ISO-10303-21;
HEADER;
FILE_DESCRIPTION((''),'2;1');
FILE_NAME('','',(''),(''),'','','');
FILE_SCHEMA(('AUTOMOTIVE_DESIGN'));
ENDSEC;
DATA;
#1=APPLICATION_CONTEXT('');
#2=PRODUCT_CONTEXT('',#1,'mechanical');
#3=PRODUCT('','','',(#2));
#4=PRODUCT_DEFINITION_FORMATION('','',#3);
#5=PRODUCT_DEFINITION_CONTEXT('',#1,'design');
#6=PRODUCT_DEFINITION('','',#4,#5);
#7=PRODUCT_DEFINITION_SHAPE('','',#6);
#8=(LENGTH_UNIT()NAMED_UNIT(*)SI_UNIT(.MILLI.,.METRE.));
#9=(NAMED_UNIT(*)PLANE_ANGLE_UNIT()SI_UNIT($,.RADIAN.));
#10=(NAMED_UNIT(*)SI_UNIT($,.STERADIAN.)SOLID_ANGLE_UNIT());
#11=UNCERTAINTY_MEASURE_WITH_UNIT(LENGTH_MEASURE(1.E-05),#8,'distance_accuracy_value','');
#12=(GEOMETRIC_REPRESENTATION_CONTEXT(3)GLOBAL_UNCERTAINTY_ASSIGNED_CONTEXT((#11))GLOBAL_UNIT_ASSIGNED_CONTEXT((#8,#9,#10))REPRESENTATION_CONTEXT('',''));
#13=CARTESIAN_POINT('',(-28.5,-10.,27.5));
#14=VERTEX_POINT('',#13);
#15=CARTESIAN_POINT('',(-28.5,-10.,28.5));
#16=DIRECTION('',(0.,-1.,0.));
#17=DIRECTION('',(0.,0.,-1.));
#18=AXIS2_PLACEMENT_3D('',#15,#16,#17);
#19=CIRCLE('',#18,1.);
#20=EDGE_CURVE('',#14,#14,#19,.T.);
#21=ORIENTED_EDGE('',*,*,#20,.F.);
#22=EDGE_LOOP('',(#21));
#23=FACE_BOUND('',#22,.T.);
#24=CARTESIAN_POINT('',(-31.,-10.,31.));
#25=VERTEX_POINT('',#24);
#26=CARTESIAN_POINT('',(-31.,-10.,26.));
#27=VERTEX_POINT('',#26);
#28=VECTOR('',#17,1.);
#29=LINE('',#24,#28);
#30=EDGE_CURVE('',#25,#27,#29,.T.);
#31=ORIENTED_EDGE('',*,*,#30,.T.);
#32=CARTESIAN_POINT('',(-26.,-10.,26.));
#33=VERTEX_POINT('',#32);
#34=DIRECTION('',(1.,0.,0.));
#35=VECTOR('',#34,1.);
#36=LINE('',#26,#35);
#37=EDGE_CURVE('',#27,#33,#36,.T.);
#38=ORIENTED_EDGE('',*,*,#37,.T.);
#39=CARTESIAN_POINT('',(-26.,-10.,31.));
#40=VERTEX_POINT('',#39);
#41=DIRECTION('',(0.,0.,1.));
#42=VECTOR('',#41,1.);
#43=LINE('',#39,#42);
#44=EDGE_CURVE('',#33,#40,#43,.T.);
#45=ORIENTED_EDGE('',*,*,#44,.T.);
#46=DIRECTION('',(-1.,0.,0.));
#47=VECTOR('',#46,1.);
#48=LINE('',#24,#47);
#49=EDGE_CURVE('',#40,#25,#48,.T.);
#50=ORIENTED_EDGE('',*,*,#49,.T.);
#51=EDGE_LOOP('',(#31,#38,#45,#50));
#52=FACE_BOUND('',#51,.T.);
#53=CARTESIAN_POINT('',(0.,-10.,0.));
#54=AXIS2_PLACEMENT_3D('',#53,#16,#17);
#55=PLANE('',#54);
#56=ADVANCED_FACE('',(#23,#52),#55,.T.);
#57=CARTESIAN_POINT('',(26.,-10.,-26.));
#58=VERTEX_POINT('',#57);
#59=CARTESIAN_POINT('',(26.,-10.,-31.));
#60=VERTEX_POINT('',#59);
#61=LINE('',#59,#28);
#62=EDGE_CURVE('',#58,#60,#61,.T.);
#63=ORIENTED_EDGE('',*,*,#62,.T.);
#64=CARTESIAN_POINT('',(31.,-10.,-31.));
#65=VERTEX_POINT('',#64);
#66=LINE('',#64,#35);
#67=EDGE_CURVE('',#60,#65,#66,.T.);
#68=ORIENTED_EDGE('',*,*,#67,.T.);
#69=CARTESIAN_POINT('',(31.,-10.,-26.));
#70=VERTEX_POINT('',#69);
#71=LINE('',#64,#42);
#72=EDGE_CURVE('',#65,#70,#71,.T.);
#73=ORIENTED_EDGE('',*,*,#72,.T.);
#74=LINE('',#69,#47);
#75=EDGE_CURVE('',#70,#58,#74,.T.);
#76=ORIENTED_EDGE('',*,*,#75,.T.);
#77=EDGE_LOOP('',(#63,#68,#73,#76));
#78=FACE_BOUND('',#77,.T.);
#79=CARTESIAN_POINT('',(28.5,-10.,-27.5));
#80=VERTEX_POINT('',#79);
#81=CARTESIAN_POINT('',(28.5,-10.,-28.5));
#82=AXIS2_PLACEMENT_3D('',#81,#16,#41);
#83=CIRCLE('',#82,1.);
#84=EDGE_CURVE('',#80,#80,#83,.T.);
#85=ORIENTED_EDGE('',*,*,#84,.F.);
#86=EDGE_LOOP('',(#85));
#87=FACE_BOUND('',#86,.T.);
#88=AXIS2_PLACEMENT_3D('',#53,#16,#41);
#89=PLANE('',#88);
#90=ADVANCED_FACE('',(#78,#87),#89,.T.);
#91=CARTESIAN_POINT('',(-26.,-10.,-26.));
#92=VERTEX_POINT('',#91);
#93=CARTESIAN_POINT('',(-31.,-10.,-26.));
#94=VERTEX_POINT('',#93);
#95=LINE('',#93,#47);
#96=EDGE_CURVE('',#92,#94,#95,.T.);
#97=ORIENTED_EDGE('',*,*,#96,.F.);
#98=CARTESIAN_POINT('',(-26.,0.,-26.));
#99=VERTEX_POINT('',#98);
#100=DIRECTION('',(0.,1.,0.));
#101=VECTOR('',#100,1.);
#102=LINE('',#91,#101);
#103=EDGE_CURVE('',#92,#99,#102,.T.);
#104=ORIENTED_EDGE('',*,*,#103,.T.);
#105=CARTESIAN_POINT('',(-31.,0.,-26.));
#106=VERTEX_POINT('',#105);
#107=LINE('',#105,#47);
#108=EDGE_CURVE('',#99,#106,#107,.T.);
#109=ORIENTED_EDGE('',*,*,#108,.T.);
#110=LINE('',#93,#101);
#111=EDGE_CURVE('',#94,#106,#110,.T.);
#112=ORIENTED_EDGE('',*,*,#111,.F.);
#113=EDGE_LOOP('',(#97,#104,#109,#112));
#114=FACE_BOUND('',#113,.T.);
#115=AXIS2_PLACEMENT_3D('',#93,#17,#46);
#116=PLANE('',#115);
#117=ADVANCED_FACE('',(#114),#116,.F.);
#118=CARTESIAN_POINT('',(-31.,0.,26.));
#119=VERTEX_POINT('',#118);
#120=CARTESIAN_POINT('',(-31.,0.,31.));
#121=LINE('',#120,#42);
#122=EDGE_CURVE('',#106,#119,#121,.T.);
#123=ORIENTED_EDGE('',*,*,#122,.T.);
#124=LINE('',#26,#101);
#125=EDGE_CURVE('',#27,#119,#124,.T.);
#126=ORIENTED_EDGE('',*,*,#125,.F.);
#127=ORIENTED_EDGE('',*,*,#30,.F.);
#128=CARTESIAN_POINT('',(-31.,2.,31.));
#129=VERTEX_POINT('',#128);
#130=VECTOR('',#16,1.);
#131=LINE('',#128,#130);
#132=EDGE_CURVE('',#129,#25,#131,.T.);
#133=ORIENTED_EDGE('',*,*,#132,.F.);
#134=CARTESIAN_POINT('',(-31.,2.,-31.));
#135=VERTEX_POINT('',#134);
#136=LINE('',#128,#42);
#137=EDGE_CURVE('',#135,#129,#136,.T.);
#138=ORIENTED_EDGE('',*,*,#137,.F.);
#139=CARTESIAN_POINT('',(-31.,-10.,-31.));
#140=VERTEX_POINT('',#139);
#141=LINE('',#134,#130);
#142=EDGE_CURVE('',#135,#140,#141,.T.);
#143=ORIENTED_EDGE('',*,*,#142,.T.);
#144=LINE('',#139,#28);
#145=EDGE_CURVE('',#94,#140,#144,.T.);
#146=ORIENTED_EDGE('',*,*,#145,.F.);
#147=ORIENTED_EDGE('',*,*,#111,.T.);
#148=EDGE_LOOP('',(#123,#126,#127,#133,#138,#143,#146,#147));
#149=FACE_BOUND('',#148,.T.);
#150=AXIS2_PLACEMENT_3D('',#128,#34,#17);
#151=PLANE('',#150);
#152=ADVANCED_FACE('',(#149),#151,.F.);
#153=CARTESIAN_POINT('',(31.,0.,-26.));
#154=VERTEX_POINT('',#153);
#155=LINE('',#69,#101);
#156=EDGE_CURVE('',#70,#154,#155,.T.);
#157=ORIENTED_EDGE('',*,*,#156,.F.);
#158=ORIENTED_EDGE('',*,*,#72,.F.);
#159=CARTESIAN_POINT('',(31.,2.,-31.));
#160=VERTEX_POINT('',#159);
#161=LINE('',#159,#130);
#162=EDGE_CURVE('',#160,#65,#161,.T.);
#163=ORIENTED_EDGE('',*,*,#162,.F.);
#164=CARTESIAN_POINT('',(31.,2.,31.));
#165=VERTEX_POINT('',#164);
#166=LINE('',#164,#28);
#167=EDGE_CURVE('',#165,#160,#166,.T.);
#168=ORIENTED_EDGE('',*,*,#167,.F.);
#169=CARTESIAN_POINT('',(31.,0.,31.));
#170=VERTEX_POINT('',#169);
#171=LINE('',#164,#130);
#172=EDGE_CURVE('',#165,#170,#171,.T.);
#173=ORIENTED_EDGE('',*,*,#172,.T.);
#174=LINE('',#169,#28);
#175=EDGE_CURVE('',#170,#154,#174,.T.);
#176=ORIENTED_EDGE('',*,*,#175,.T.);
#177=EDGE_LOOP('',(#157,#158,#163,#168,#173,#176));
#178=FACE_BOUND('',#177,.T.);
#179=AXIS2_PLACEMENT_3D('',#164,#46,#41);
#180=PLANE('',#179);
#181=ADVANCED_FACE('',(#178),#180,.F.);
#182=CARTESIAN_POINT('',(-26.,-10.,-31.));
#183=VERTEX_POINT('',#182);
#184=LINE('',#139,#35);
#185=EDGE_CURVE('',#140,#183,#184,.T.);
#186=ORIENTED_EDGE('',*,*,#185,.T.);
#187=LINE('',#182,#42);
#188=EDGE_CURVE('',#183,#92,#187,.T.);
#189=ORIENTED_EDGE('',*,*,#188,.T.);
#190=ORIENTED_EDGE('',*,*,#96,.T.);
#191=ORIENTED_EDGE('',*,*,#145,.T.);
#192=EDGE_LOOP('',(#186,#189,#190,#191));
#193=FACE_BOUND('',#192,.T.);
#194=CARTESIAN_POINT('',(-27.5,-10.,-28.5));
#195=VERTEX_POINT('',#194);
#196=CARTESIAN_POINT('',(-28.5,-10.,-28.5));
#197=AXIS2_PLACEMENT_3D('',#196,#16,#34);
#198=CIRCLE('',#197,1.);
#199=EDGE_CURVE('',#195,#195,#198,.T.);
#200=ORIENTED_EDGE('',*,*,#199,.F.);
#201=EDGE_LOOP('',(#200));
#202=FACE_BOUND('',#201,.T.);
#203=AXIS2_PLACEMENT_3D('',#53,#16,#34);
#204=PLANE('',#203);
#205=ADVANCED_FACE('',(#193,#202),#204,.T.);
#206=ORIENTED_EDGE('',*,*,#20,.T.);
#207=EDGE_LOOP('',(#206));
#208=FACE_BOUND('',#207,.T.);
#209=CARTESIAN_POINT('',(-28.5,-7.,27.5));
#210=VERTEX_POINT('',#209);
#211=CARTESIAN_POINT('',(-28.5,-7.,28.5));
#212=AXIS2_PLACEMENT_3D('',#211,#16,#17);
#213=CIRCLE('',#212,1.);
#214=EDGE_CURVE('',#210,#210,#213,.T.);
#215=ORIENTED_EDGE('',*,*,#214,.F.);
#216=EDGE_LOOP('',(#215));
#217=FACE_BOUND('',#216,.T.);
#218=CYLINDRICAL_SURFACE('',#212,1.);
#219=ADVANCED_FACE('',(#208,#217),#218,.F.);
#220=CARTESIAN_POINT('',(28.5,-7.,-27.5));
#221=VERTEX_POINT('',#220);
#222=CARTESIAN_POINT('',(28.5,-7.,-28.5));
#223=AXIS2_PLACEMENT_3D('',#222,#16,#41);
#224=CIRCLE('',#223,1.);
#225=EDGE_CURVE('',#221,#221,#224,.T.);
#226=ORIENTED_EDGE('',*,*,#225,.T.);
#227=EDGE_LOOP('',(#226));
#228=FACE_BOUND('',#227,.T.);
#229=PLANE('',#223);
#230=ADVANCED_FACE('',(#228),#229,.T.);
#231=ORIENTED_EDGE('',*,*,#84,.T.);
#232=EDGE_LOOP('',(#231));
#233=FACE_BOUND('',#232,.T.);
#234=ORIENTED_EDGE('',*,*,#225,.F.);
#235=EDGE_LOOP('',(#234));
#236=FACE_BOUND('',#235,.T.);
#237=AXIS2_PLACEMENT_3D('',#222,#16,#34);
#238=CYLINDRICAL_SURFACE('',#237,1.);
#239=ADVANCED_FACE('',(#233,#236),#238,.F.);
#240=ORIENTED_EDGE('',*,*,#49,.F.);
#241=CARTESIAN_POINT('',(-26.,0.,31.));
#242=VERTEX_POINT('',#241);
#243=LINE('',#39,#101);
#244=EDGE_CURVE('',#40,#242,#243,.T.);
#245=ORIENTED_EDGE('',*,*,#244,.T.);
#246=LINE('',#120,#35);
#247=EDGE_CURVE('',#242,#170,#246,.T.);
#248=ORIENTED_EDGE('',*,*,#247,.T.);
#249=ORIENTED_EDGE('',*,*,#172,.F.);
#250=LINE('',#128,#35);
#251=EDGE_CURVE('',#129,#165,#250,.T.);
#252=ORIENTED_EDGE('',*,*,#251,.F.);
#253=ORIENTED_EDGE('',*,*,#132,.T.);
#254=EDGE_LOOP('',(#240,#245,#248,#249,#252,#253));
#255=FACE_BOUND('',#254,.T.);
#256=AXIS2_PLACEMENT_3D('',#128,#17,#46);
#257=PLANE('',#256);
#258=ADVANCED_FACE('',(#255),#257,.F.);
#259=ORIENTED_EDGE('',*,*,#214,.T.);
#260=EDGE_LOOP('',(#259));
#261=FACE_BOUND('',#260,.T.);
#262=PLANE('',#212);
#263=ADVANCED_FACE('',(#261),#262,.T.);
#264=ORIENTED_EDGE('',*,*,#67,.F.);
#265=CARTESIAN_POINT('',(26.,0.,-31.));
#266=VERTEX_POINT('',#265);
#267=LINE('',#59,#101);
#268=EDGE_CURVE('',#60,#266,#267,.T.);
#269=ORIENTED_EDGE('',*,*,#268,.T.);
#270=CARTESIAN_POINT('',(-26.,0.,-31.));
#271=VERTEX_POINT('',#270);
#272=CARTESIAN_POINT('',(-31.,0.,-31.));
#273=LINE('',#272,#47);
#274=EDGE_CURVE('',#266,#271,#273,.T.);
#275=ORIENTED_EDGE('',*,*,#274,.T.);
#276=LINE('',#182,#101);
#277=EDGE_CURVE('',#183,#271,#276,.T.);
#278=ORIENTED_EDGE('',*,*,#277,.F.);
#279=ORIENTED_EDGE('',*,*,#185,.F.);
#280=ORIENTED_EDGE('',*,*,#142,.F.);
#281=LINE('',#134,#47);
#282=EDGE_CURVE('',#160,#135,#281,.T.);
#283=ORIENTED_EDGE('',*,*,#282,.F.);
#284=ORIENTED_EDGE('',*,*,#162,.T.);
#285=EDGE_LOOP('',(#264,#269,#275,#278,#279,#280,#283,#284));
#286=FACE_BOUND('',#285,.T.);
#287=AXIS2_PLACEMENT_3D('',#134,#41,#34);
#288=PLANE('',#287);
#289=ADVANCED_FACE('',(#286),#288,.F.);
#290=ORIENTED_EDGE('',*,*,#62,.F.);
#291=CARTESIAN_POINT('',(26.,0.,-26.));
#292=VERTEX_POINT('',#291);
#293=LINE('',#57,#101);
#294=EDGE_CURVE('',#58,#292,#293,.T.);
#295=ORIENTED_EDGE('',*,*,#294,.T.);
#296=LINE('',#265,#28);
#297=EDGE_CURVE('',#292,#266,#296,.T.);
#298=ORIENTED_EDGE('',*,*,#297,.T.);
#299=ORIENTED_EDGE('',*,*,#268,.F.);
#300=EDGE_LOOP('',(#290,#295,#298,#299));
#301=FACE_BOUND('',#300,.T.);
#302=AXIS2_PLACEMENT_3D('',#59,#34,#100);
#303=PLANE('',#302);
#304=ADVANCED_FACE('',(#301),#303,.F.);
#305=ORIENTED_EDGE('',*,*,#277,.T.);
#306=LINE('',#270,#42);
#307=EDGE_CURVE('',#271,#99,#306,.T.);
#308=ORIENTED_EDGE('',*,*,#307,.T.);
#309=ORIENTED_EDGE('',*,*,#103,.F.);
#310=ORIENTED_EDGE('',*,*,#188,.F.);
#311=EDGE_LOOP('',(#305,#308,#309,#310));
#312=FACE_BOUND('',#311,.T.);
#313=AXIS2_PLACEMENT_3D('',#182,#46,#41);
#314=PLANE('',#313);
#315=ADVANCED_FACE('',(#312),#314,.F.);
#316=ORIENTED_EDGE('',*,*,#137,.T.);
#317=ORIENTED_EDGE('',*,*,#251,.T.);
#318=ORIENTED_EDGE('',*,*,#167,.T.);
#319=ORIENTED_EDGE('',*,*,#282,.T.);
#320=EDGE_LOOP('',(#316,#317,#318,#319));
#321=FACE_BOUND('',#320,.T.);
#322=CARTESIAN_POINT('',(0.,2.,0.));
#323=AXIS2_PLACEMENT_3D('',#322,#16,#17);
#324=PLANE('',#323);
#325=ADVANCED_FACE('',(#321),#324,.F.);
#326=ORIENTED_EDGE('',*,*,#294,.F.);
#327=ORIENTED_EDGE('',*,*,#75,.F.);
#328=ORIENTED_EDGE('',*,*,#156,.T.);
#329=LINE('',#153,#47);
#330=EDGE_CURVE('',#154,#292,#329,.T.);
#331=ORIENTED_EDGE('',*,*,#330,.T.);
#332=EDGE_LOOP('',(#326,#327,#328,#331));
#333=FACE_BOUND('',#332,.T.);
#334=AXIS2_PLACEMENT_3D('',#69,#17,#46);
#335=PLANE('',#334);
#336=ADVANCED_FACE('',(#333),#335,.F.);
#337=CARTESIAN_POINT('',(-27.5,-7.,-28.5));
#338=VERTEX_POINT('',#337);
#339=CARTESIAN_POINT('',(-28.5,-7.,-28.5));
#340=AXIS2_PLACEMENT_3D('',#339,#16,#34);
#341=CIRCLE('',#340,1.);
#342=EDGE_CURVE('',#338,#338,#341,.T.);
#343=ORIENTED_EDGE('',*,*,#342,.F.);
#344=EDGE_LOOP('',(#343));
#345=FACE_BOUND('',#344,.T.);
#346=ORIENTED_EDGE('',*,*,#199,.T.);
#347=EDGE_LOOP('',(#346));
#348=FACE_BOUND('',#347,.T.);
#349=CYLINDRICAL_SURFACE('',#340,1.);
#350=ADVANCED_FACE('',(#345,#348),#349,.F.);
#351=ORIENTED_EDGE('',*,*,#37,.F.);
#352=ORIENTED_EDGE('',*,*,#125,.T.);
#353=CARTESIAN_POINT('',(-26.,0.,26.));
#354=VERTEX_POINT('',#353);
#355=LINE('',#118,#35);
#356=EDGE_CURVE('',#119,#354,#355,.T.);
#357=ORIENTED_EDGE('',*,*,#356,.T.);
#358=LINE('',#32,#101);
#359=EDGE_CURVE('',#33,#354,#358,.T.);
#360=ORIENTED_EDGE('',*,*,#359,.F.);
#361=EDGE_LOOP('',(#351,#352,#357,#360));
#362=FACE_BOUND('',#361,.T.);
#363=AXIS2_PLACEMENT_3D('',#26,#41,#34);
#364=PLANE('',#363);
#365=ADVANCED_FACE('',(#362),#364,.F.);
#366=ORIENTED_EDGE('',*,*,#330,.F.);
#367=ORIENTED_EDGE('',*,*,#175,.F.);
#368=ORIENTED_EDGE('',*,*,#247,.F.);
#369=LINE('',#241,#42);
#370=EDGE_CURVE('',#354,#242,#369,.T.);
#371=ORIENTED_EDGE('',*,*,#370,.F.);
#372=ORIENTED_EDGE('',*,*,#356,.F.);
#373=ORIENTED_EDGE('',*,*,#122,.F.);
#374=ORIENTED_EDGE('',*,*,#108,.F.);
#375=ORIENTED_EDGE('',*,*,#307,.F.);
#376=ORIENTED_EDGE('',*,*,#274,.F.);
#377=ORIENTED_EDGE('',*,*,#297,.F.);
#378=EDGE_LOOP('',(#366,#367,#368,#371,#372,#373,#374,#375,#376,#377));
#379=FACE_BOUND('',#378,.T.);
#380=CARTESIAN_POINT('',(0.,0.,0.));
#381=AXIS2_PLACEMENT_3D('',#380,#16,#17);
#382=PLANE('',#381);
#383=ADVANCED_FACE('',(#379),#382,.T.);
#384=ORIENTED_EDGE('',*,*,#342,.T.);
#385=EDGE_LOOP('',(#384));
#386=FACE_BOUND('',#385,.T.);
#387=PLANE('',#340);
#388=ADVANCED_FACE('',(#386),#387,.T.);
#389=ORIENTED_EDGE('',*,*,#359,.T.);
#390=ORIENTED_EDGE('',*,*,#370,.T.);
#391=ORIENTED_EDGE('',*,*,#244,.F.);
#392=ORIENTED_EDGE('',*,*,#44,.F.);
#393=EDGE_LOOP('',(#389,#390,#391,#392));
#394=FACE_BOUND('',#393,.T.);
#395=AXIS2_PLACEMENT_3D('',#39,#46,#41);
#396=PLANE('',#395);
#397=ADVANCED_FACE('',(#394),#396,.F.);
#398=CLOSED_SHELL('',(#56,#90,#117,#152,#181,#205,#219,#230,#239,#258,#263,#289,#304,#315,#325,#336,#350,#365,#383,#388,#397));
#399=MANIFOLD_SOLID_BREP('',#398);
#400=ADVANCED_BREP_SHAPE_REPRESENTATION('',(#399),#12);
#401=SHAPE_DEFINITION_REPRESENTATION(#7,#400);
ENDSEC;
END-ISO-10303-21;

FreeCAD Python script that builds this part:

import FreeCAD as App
import Part
import Sketcher

V = App.Vector


def add_polygon(sketch, points):
    """Adds a closed chain of lines whose ends are joined by coincident constraints."""
    first, n = sketch.GeometryCount, len(points)
    for a, b in zip(points, points[1:] + points[:1]):
        sketch.addGeometry(Part.LineSegment(App.Vector(*a, 0), App.Vector(*b, 0)), False)
    for i in range(n):
        sketch.addConstraint(Sketcher.Constraint("Coincident", first + i, 2, first + (i + 1) % n, 1))

doc = App.newDocument("Part")
body = doc.addObject("PartDesign::Body", "Body")

# Sketch on XZ plane
sketch1 = doc.addObject("Sketcher::SketchObject", "Sketch")
body.addObject(sketch1)
sketch1.AttachmentSupport = (doc.XZ_Plane, [""])
sketch1.MapMode = "FlatFace"
add_polygon(sketch1, [(-31, -31), (-31, 31), (31, 31), (31, -31)])  # lines 0-3
sketch1.addConstraint(Sketcher.Constraint("Vertical", 0))
sketch1.addConstraint(Sketcher.Constraint("Horizontal", 1))
sketch1.addConstraint(Sketcher.Constraint("Vertical", 2))
sketch1.addConstraint(Sketcher.Constraint("Horizontal", 3))
sketch1.addConstraint(Sketcher.Constraint("Symmetric", 0, 2, 2, 2, -1, 1))
sketch1.addConstraint(Sketcher.Constraint("Equal", 3, 0))
sketch1.addConstraint(Sketcher.Constraint("DistanceX", 1, 1, 1, 2, 62.0))
pad1 = doc.addObject("PartDesign::Pad", "Pad")
body.addObject(pad1)
pad1.Profile = sketch1
pad1.Length = 2
pad1.Reversed = True

# Sketch on XZ plane
sketch2 = doc.addObject("Sketcher::SketchObject", "Sketch001")
body.addObject(sketch2)
sketch2.AttachmentSupport = (doc.XZ_Plane, [""])
sketch2.MapMode = "FlatFace"
add_polygon(sketch2, [(-31, 31), (-31, 26), (-26, 26), (-26, 31)])  # lines 0-3
sketch2.addConstraint(Sketcher.Constraint("Vertical", 0))
sketch2.addConstraint(Sketcher.Constraint("Horizontal", 1))
sketch2.addConstraint(Sketcher.Constraint("Vertical", 2))
sketch2.addConstraint(Sketcher.Constraint("Horizontal", 3))
sketch2.addConstraint(Sketcher.Constraint("Equal", 3, 0))
sketch2.addConstraint(Sketcher.Constraint("DistanceX", 1, 1, 1, 2, 5.0))
sketch2.addConstraint(Sketcher.Constraint("DistanceX", 0, 2, -1, 1, 31.0))
sketch2.addConstraint(Sketcher.Constraint("DistanceY", -1, 1, 0, 2, 26.0))
pad2 = doc.addObject("PartDesign::Pad", "Pad001")
body.addObject(pad2)
pad2.Profile = sketch2
pad2.Length = 10

# Sketch on XZ plane
sketch3 = doc.addObject("Sketcher::SketchObject", "Sketch002")
body.addObject(sketch3)
sketch3.AttachmentSupport = (doc.XZ_Plane, [""])
sketch3.MapMode = "FlatFace"
sketch3.AttachmentOffset = App.Placement(V(0, 0, 10), App.Rotation())
sketch3.addGeometry(Part.Circle(V(-28.5, 28.5, 0), V(0, 0, 1), 1), False)
sketch3.addConstraint(Sketcher.Constraint("Diameter", 0, 2.0))
sketch3.addConstraint(Sketcher.Constraint("DistanceX", 0, 3, -1, 1, 28.5))
sketch3.addConstraint(Sketcher.Constraint("DistanceY", -1, 1, 0, 3, 28.5))
pocket1 = doc.addObject("PartDesign::Pocket", "Pocket")
body.addObject(pocket1)
pocket1.Profile = sketch3
pocket1.Length = 3
doc.recompute()

polarpattern = doc.addObject("PartDesign::PolarPattern", "PolarPattern")
body.addObject(polarpattern)
polarpattern.Originals = [pad2, pocket1]
polarpattern.Axis = (doc.Y_Axis, [""])
polarpattern.Angle = 180
polarpattern.Occurrences = 3
polarpattern.Reversed = True
body.Tip = polarpattern

doc.recompute()
